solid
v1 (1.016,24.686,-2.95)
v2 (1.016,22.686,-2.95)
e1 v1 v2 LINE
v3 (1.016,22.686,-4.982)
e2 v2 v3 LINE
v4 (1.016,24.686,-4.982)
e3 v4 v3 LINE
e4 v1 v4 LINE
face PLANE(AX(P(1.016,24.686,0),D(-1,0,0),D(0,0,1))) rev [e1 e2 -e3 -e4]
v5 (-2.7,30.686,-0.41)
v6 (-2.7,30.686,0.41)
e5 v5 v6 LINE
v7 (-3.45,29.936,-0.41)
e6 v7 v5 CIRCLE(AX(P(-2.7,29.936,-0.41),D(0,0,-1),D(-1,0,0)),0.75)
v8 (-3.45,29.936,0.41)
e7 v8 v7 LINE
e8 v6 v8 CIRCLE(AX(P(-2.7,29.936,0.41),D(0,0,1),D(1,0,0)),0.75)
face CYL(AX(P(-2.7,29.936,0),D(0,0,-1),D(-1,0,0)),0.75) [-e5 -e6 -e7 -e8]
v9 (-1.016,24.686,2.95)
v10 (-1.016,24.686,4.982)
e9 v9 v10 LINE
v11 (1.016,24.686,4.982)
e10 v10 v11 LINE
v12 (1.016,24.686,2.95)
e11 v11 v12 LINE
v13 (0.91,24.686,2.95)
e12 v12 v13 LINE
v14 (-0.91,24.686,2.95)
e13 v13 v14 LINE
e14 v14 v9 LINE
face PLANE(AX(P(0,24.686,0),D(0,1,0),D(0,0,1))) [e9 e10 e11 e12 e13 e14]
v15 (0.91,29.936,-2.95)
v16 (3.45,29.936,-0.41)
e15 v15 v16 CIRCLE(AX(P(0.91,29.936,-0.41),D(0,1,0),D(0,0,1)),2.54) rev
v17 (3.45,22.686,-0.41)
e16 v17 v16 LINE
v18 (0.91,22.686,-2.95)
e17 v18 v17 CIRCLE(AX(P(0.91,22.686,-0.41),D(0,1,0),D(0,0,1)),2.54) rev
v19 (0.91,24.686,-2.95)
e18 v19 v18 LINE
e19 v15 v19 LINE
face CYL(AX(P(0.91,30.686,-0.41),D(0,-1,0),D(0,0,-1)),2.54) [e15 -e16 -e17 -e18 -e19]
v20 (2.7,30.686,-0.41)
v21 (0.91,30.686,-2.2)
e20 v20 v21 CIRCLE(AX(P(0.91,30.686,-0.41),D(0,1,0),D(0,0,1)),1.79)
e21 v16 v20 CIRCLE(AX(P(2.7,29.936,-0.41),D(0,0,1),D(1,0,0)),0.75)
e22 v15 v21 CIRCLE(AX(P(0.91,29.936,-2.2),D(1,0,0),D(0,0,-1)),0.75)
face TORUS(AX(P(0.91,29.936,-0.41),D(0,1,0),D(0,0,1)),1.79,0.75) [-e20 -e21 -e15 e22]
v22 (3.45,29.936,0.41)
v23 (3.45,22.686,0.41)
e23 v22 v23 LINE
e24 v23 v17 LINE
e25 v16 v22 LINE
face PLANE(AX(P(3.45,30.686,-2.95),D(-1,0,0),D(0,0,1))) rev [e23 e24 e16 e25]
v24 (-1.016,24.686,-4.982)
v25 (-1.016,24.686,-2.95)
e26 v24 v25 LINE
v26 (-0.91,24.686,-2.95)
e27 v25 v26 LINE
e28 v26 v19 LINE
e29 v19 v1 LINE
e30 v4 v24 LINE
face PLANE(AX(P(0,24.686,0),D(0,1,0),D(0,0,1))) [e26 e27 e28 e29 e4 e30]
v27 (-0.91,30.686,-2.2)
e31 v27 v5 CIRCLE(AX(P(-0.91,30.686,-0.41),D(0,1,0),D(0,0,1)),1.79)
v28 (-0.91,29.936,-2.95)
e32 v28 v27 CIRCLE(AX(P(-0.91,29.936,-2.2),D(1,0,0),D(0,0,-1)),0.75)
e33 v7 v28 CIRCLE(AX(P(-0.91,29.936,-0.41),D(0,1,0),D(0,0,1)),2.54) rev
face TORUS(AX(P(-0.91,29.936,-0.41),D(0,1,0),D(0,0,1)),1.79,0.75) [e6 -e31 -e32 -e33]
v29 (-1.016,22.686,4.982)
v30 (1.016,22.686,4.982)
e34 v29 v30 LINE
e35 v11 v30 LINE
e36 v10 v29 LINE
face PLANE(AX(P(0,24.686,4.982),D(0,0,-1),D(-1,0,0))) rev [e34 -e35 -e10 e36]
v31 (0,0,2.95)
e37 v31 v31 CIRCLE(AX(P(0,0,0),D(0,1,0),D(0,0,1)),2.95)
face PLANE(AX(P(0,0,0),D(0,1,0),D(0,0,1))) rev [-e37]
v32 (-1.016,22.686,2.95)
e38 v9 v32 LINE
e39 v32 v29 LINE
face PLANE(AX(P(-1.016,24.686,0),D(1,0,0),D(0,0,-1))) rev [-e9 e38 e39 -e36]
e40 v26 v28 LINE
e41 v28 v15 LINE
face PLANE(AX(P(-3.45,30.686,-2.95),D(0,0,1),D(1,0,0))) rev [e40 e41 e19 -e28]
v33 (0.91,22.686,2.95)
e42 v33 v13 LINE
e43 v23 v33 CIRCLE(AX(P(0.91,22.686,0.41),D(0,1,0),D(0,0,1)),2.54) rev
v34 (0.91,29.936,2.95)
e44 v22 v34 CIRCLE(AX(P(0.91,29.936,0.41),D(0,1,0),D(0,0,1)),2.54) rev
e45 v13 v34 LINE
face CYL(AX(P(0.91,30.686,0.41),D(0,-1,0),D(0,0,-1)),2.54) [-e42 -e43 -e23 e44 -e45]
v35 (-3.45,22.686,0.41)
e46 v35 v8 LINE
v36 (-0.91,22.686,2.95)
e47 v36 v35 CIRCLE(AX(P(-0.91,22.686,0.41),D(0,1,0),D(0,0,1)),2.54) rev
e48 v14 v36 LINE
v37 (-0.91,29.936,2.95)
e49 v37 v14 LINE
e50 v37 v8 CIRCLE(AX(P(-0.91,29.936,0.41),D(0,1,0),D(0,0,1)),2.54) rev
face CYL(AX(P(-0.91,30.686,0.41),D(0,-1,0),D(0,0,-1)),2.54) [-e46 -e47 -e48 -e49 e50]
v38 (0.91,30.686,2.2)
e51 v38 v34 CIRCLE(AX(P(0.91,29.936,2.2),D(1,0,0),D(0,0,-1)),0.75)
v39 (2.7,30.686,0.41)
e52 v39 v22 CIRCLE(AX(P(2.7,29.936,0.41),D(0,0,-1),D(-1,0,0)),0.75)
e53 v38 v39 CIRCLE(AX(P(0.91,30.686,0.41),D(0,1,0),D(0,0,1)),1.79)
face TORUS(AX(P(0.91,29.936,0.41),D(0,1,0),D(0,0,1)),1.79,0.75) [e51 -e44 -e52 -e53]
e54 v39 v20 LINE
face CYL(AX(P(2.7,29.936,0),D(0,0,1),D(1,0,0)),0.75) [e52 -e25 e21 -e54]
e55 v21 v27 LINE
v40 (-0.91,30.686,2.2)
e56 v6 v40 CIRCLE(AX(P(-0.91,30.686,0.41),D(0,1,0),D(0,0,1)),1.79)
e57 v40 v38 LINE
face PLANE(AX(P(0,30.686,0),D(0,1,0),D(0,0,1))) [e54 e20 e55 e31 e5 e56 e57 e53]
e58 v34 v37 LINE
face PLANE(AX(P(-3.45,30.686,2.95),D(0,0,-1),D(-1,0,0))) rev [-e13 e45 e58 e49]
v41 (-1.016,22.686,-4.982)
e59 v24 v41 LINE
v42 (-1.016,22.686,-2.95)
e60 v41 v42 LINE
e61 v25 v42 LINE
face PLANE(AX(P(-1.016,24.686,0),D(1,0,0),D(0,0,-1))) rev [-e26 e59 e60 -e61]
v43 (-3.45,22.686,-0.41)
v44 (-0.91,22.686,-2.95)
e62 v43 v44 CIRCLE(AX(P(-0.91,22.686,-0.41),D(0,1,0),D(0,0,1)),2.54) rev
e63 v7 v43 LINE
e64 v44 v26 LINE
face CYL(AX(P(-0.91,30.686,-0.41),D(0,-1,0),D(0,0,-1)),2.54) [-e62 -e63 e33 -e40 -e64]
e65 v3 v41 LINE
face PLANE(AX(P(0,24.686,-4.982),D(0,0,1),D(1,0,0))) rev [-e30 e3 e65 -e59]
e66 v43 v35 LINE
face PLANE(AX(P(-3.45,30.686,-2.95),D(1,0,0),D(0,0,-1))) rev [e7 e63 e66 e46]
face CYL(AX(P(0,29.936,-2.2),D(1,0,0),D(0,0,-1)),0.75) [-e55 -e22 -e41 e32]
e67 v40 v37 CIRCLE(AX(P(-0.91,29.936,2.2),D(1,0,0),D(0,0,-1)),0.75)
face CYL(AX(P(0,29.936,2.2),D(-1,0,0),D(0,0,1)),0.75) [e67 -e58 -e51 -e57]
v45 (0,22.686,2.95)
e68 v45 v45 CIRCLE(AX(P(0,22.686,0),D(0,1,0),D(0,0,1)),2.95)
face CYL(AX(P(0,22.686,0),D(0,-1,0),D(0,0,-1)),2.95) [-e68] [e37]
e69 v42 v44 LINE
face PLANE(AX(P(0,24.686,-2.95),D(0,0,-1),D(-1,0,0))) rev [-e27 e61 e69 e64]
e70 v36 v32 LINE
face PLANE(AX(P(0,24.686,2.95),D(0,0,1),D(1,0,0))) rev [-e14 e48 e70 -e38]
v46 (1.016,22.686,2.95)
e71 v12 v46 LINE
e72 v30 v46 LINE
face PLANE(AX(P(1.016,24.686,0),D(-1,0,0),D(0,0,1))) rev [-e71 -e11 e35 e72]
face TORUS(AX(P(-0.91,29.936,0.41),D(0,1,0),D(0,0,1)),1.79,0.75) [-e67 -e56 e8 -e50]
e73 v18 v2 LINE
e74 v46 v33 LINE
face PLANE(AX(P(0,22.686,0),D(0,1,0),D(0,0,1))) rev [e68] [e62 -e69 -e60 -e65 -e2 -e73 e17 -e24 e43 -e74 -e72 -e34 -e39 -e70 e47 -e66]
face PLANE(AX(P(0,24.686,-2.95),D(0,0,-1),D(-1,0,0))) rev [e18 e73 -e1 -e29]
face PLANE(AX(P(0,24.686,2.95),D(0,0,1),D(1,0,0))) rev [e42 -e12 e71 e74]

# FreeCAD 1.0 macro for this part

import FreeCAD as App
import Part
import Sketcher
from FreeCAD import Vector


def edges_at(feature, points):
    """Names of the edges that pass closest to the given points."""
    edges = feature.Shape.Edges
    near = lambda p: min(range(len(edges)), key=lambda i: edges[i].distToShape(Part.Vertex(*p))[0])
    return sorted({f"Edge{near(p) + 1}" for p in points})

doc = App.newDocument("Part")
params = doc.addObject("Spreadsheet::Sheet", "Params")
for row, (alias, value) in enumerate([
    ("sketch1_diameter", "5.9 mm"),
    ("pad1_length", "22.686 mm"),
    ("sketch2_width", "6.9 mm"),
    ("sketch2_height", "5.9 mm"),
    ("pad2_length", "8 mm"),
    ("fillet_radius", "2.54 mm"),
    ("fillet2_radius", "0.75 mm"),
    ("pad3_length", "2 mm"),
], start=1):
    params.set(f"A{row}", alias)
    params.set(f"B{row}", "=" + value)
    params.setAlias(f"B{row}", alias)

body = doc.addObject("PartDesign::Body", "Body")

# Sketch on XZ plane
sketch1 = doc.addObject("Sketcher::SketchObject", "Sketch")
body.addObject(sketch1)
sketch1.AttachmentSupport = (doc.XZ_Plane, [""])
sketch1.MapMode = "FlatFace"
sketch1.addGeometry(Part.Circle(Vector(0, 0, 0), Vector(0, 0, 1), 2.95), False)
sketch1.addConstraint([
    Sketcher.Constraint("Coincident", 0, 3, -1, 1),
    Sketcher.Constraint("Diameter", 0, 5.9),
])
sketch1.setExpression("Constraints[1]", "Params.sketch1_diameter")
pad1 = doc.addObject("PartDesign::Pad", "Pad")
body.addObject(pad1)
pad1.Profile = sketch1
pad1.setExpression("Length", "Params.pad1_length")
pad1.Reversed = True

# Sketch on XZ plane
sketch2 = doc.addObject("Sketcher::SketchObject", "Sketch001")
body.addObject(sketch2)
sketch2.AttachmentSupport = (doc.XZ_Plane, [""])
sketch2.MapMode = "FlatFace"
sketch2.AttachmentOffset = App.Placement(Vector(0, 0, -22.686), App.Rotation())
sketch2.addGeometry([
    Part.LineSegment(Vector(-3.45, -2.95, 0), Vector(-3.45, 2.95, 0)),
    Part.LineSegment(Vector(-3.45, 2.95, 0), Vector(3.45, 2.95, 0)),
    Part.LineSegment(Vector(3.45, 2.95, 0), Vector(3.45, -2.95, 0)),
    Part.LineSegment(Vector(3.45, -2.95, 0), Vector(-3.45, -2.95, 0)),
], False)
sketch2.addConstraint([
    Sketcher.Constraint("Coincident", 0, 2, 1, 1),
    Sketcher.Constraint("Coincident", 1, 2, 2, 1),
    Sketcher.Constraint("Coincident", 2, 2, 3, 1),
    Sketcher.Constraint("Coincident", 3, 2, 0, 1),
    Sketcher.Constraint("Vertical", 0),
    Sketcher.Constraint("Horizontal", 1),
    Sketcher.Constraint("Vertical", 2),
    Sketcher.Constraint("Horizontal", 3),
    Sketcher.Constraint("Symmetric", 0, 2, 2, 2, -1, 1),
    Sketcher.Constraint("DistanceX", 1, 1, 1, 2, 6.9),
    Sketcher.Constraint("DistanceY", 0, 1, 0, 2, 5.9),
])
sketch2.setExpression("Constraints[9]", "Params.sketch2_width")
sketch2.setExpression("Constraints[10]", "Params.sketch2_height")
pad2 = doc.addObject("PartDesign::Pad", "Pad001")
body.addObject(pad2)
pad2.Profile = sketch2
pad2.setExpression("Length", "Params.pad2_length")
pad2.Reversed = True
doc.recompute()

fillet = doc.addObject("PartDesign::Fillet", "Fillet")
body.addObject(fillet)
fillet.Base = (pad2, edges_at(pad2, [
    (3.45, 26.686, 2.95),
    (3.45, 26.686, -2.95),
    (-3.45, 26.686, -2.95),
    (-3.45, 26.686, 2.95),
]))
fillet.setExpression("Radius", "Params.fillet_radius")
doc.recompute()

fillet2 = doc.addObject("PartDesign::Fillet", "Fillet001")
body.addObject(fillet2)
fillet2.Base = (fillet, edges_at(fillet, [
    (-3.45, 30.686, 0),
    (0, 30.686, -2.95),
    (3.45, 30.686, 0),
    (0, 30.686, 2.95),
    (-2.706, 30.686, 2.206),
    (2.706, 30.686, 2.206),
    (2.706, 30.686, -2.206),
    (-2.706, 30.686, -2.206),
]))
fillet2.setExpression("Radius", "Params.fillet2_radius")

# Sketch on XZ plane
sketch3 = doc.addObject("Sketcher::SketchObject", "Sketch002")
body.addObject(sketch3)
sketch3.AttachmentSupport = (doc.XZ_Plane, [""])
sketch3.MapMode = "FlatFace"
sketch3.AttachmentOffset = App.Placement(Vector(0, 0, -22.686), App.Rotation())
sketch3.addGeometry([
    Part.LineSegment(Vector(-1.016, -4.982, 0), Vector(-1.016, -2.95, 0)),  # 0
    Part.LineSegment(Vector(-1.016, -2.95, 0), Vector(1.016, -2.95, 0)),  # 1
    Part.LineSegment(Vector(1.016, -2.95, 0), Vector(1.016, -4.982, 0)),  # 2
    Part.LineSegment(Vector(1.016, -4.982, 0), Vector(-1.016, -4.982, 0)),  # 3
    Part.LineSegment(Vector(-1.016, 2.95, 0), Vector(-1.016, 4.982, 0)),  # 4
    Part.LineSegment(Vector(-1.016, 4.982, 0), Vector(1.016, 4.982, 0)),  # 5
    Part.LineSegment(Vector(1.016, 4.982, 0), Vector(1.016, 2.95, 0)),  # 6
    Part.LineSegment(Vector(1.016, 2.95, 0), Vector(-1.016, 2.95, 0)),  # 7
], False)
sketch3.addConstraint([
    Sketcher.Constraint("Coincident", 0, 2, 1, 1),
    Sketcher.Constraint("Coincident", 1, 2, 2, 1),
    Sketcher.Constraint("Coincident", 2, 2, 3, 1),
    Sketcher.Constraint("Coincident", 3, 2, 0, 1),
    Sketcher.Constraint("Coincident", 4, 2, 5, 1),
    Sketcher.Constraint("Coincident", 5, 2, 6, 1),
    Sketcher.Constraint("Coincident", 6, 2, 7, 1),
    Sketcher.Constraint("Coincident", 7, 2, 4, 1),
    Sketcher.Constraint("Vertical", 0),
    Sketcher.Constraint("Horizontal", 1),
    Sketcher.Constraint("Vertical", 2),
    Sketcher.Constraint("Horizontal", 3),
    Sketcher.Constraint("Vertical", 4),
    Sketcher.Constraint("Horizontal", 5),
    Sketcher.Constraint("Vertical", 6),
    Sketcher.Constraint("Horizontal", 7),
    Sketcher.Constraint("Symmetric", 2, 2, 4, 2, -1, 1),
    Sketcher.Constraint("Symmetric", 0, 2, 6, 2, -1, 1),
    Sketcher.Constraint("Vertical", 3, 2, 4, 2),
    Sketcher.Constraint("Equal", 7, 0),
    Sketcher.Constraint("DistanceY", 1, 2, 6, 2, 5.9),
    Sketcher.Constraint("DistanceX", 1, 1, 1, 2, 2.032),
])
pad3 = doc.addObject("PartDesign::Pad", "Pad002")
body.addObject(pad3)
pad3.Profile = sketch3
pad3.setExpression("Length", "Params.pad3_length")
pad3.Reversed = True

doc.recompute()
